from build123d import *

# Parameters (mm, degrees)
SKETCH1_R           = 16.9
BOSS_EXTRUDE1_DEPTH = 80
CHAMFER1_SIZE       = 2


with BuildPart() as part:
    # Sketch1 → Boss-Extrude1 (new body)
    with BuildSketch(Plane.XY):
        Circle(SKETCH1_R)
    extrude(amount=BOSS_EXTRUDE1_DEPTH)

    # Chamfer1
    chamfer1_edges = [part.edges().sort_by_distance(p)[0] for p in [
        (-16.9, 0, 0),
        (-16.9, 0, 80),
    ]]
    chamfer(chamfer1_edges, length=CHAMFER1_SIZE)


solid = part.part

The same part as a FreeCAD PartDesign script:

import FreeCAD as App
import Part
import Sketcher

V = App.Vector
Q = App.Units.Quantity


def edges_at(feature, points):
    """Names of the edges that pass closest to the given points."""
    edges = feature.Shape.Edges
    near = lambda p: min(range(len(edges)), key=lambda i: edges[i].distToShape(Part.Vertex(*p))[0])
    return sorted({f"Edge{near(p) + 1}" for p in points})

doc = App.newDocument("Part")
body = doc.addObject("PartDesign::Body", "Body")

# Sketch on XY plane
sketch1 = body.newObject("Sketcher::SketchObject", "Sketch")
sketch1.AttachmentSupport = (doc.getObject("XY_Plane"), [""])
sketch1.MapMode = "FlatFace"
sketch1.addGeometry(Part.Circle(V(0, 0, 0), V(0, 0, 1), 17), False)
sketch1.addConstraint([
    Sketcher.Constraint("Coincident", 0, 3, -1, 1),
    Sketcher.Constraint("Diameter", 0, Q("33.8 mm")),
])
pad1 = body.newObject("PartDesign::Pad", "Pad")
pad1.Profile = sketch1
pad1.Length = 80
doc.recompute()

chamfer = body.newObject("PartDesign::Chamfer", "Chamfer")
chamfer.Base = (pad1, edges_at(pad1, [(-16.9, 0, 0), (-16.9, 0, 80)]))
chamfer.Size = 2

doc.recompute()
